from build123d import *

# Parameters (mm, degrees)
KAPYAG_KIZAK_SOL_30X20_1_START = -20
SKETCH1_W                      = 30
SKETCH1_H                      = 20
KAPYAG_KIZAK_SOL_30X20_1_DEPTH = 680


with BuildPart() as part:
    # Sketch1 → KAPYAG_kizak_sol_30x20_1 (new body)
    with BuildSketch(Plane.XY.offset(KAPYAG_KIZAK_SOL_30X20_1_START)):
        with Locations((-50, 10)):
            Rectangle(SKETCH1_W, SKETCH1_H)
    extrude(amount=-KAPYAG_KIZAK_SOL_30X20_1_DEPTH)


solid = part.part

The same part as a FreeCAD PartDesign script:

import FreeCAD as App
import Part
import Sketcher

doc = App.newDocument("Part")
body = doc.addObject("PartDesign::Body", "Body")

sketch1 = body.newObject("Sketcher::SketchObject", "Sketch")
sketch1.AttachmentSupport = (doc.getObject("XY_Plane"), [""])
sketch1.MapMode = "FlatFace"
sketch1.AttachmentOffset = App.Placement(App.Vector(0, 0, -20), App.Rotation())
sketch1.addGeometry([
    Part.LineSegment(App.Vector(-65, 20, 0), App.Vector(-65, 0, 0)),
    Part.LineSegment(App.Vector(-65, 0, 0), App.Vector(-35, 0, 0)),
    Part.LineSegment(App.Vector(-35, 0, 0), App.Vector(-35, 20, 0)),
    Part.LineSegment(App.Vector(-35, 20, 0), App.Vector(-65, 20, 0)),
], False)
sketch1.addConstraint([
    Sketcher.Constraint("Coincident", 0, 2, 1, 1),
    Sketcher.Constraint("Coincident", 1, 2, 2, 1),
    Sketcher.Constraint("Coincident", 2, 2, 3, 1),
    Sketcher.Constraint("Coincident", 3, 2, 0, 1),
    Sketcher.Constraint("Vertical", 0),
    Sketcher.Constraint("Horizontal", 1),
    Sketcher.Constraint("Vertical", 2),
    Sketcher.Constraint("Horizontal", 3),
    Sketcher.Constraint("PointOnObject", 0, 2, -1),
    Sketcher.Constraint("DistanceX", 1, 1, 1, 2, 30.0),
    Sketcher.Constraint("DistanceY", 0, 2, 0, 1, 20.0),
    Sketcher.Constraint("DistanceX", 0, 2, -1, 1, 65.0),
])
pad1 = body.newObject("PartDesign::Pad", "Pad")
pad1.Profile = sketch1
pad1.Length = 680
pad1.Reversed = True

doc.recompute()
